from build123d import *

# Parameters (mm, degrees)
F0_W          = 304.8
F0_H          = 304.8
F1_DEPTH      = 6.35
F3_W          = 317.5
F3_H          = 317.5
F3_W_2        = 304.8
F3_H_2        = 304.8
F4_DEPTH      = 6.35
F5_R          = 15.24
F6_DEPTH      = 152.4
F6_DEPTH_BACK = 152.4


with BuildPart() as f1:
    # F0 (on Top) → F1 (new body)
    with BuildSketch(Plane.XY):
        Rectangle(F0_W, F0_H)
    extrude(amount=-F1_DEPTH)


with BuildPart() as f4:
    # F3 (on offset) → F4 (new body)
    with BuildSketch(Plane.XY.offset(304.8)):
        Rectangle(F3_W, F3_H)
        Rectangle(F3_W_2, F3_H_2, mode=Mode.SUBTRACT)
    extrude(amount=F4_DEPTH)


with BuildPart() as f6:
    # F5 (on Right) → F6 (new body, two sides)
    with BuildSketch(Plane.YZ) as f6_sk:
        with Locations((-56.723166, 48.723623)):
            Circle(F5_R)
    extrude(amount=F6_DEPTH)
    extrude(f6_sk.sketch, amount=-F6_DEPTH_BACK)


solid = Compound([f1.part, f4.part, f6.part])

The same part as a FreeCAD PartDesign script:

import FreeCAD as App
import Part
import Sketcher

V = App.Vector
Q = App.Units.Quantity


def add_polygon(sketch, points):
    """Adds a closed chain of lines whose ends are joined by coincident constraints."""
    first, n = sketch.GeometryCount, len(points)
    for a, b in zip(points, points[1:] + points[:1]):
        sketch.addGeometry(Part.LineSegment(App.Vector(*a, 0), App.Vector(*b, 0)), False)
    for i in range(n):
        sketch.addConstraint(Sketcher.Constraint("Coincident", first + i, 2, first + (i + 1) % n, 1))

doc = App.newDocument("Part")
body = doc.addObject("PartDesign::Body", "Body")

# Sketch on XY plane
sketch1 = body.newObject("Sketcher::SketchObject", "Sketch")
sketch1.AttachmentSupport = (doc.getObject("XY_Plane"), [""])
sketch1.MapMode = "FlatFace"
add_polygon(sketch1, [(-152, 152), (-152, -152), (152, -152), (152, 152)])  # lines 0-3
sketch1.addConstraint(Sketcher.Constraint("Vertical", 0))
sketch1.addConstraint(Sketcher.Constraint("Horizontal", 1))
sketch1.addConstraint(Sketcher.Constraint("Vertical", 2))
sketch1.addConstraint(Sketcher.Constraint("Horizontal", 3))
sketch1.addConstraint(Sketcher.Constraint("Symmetric", 0, 2, 2, 2, -1, 1))
sketch1.addConstraint(Sketcher.Constraint("Equal", 3, 0))
sketch1.addConstraint(Sketcher.Constraint("DistanceX", 1, 1, 1, 2, Q("12 in")))
pad1 = body.newObject("PartDesign::Pad", "Pad")
pad1.Profile = sketch1
pad1.Length = Q("0.25 in")
pad1.Reversed = True
body2 = doc.addObject("PartDesign::Body", "Body001")

# Sketch on XY plane
sketch2 = body2.newObject("Sketcher::SketchObject", "Sketch001")
sketch2.AttachmentSupport = (doc.getObject("XY_Plane001"), [""])
sketch2.MapMode = "FlatFace"
sketch2.AttachmentOffset = App.Placement(V(0, 0, 12 * 25.4), App.Rotation())
add_polygon(sketch2, [(-159, 159), (-159, -159), (159, -159), (159, 159)])  # lines 0-3
add_polygon(sketch2, [(152, -152), (-152, -152), (-152, 152), (152, 152)])  # lines 4-7
sketch2.addConstraint(Sketcher.Constraint("Vertical", 0))
sketch2.addConstraint(Sketcher.Constraint("Horizontal", 1))
sketch2.addConstraint(Sketcher.Constraint("Vertical", 2))
sketch2.addConstraint(Sketcher.Constraint("Horizontal", 3))
sketch2.addConstraint(Sketcher.Constraint("Horizontal", 4))
sketch2.addConstraint(Sketcher.Constraint("Vertical", 5))
sketch2.addConstraint(Sketcher.Constraint("Horizontal", 6))
sketch2.addConstraint(Sketcher.Constraint("Vertical", 7))
sketch2.addConstraint(Sketcher.Constraint("Symmetric", 0, 2, 2, 2, -1, 1))
sketch2.addConstraint(Sketcher.Constraint("Symmetric", 4, 2, 6, 2, -1, 1))
sketch2.addConstraint(Sketcher.Constraint("Equal", 3, 0))
sketch2.addConstraint(Sketcher.Constraint("Equal", 6, 5))
sketch2.addConstraint(Sketcher.Constraint("DistanceX", 4, 2, 4, 1, Q("12 in")))
sketch2.addConstraint(Sketcher.Constraint("DistanceX", 1, 1, 1, 2, Q("12.5 in")))
pad2 = body2.newObject("PartDesign::Pad", "Pad001")
pad2.Profile = sketch2
pad2.Length = Q("0.25 in")
body3 = doc.addObject("PartDesign::Body", "Body002")

# Sketch on YZ plane
sketch3 = body3.newObject("Sketcher::SketchObject", "Sketch002")
sketch3.AttachmentSupport = (doc.getObject("YZ_Plane002"), [""])
sketch3.MapMode = "FlatFace"
sketch3.addGeometry(Part.Circle(V(-57, 49, 0), V(0, 0, 1), 15), False)
sketch3.addConstraint(Sketcher.Constraint("Diameter", 0, Q("1.2 in")))
sketch3.addConstraint(Sketcher.Constraint("DistanceX", 0, 3, -1, 1, Q("56.723166 mm")))
sketch3.addConstraint(Sketcher.Constraint("DistanceY", -1, 1, 0, 3, Q("48.723623 mm")))
pad3 = body3.newObject("PartDesign::Pad", "Pad002")
pad3.Profile = sketch3
pad3.Type = "TwoLengths"
pad3.Length = Q("6 in")
pad3.Length2 = Q("6 in")

doc.recompute()
